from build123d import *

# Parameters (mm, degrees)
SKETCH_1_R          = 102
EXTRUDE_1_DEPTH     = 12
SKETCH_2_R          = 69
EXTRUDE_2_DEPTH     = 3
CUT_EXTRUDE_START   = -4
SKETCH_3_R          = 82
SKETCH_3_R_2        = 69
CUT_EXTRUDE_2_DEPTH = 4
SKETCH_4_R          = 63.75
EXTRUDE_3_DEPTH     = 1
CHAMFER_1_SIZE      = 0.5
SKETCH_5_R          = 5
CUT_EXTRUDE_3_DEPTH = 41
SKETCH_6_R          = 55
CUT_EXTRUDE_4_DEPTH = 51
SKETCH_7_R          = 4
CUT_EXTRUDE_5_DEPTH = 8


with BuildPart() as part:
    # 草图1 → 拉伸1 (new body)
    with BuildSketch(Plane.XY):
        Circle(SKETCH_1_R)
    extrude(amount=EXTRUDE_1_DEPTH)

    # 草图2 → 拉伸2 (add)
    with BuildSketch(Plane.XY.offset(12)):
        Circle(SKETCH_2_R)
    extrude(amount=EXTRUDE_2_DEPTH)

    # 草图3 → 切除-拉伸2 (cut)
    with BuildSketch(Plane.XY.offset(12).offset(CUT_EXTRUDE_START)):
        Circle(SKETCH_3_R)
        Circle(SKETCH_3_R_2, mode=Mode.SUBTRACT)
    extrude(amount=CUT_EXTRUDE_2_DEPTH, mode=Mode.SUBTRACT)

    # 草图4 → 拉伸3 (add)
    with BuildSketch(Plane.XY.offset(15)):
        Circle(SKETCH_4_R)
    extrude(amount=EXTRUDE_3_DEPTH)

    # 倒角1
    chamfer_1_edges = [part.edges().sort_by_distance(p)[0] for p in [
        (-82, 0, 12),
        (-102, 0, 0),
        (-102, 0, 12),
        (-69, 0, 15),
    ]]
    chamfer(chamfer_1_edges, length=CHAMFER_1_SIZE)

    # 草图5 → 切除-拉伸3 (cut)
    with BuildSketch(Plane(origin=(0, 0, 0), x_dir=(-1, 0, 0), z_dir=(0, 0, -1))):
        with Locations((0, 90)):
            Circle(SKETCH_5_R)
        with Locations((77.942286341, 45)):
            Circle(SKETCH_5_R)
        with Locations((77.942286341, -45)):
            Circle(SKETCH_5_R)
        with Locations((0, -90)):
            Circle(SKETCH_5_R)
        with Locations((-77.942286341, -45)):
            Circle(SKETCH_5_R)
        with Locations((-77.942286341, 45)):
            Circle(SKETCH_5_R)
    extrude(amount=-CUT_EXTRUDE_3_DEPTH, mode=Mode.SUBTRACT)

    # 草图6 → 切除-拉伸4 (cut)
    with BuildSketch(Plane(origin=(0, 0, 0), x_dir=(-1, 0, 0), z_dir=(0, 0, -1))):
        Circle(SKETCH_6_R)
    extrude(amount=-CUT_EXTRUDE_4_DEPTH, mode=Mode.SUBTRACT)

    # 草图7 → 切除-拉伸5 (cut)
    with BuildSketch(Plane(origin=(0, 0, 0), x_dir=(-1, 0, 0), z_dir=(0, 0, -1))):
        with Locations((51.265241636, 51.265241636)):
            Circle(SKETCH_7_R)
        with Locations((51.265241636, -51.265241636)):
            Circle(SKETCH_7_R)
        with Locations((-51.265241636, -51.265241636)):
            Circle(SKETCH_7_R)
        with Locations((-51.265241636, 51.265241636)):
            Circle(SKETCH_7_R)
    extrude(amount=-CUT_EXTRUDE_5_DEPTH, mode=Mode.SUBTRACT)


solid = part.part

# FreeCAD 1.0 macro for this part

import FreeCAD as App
import Part
import Sketcher

V = App.Vector


def edges_at(feature, points):
    """Names of the edges that pass closest to the given points."""
    edges = feature.Shape.Edges
    near = lambda p: min(range(len(edges)), key=lambda i: edges[i].distToShape(Part.Vertex(*p))[0])
    return sorted({f"Edge{near(p) + 1}" for p in points})

doc = App.newDocument("Part")
params = doc.addObject("Spreadsheet::Sheet", "Params")
for row, (alias, value) in enumerate([
    ("sketch1_diameter", "204 mm"),
    ("pad1_length", "12 mm"),
    ("sketch2_diameter", "138 mm"),
    ("pad2_length", "3 mm"),
    ("sketch3_diameter", "164 mm"),
    ("sketch3_diameter2", "138 mm"),
    ("pocket1_length", "4 mm"),
    ("sketch4_diameter", "127.5 mm"),
    ("pad3_length", "1 mm"),
    ("chamfer_size", "0.5 mm"),
    ("sketch5_diameter", "10 mm"),
    ("pocket2_length", "41 mm"),
    ("sketch6_diameter", "110 mm"),
    ("pocket3_length", "51 mm"),
    ("sketch7_diameter", "8 mm"),
    ("pocket4_length", "8 mm"),
], start=1):
    params.set(f"A{row}", alias)
    params.set(f"B{row}", "=" + value)
    params.setAlias(f"B{row}", alias)

body = doc.addObject("PartDesign::Body", "Body")

# Sketch on XY plane
sketch1 = body.newObject("Sketcher::SketchObject", "Sketch")
sketch1.AttachmentSupport = (doc.getObject("XY_Plane"), [""])
sketch1.MapMode = "FlatFace"
sketch1.addGeometry(Part.Circle(V(0, 0, 0), V(0, 0, 1), 102), False)
sketch1.addConstraint(Sketcher.Constraint("Coincident", 0, 3, -1, 1))
sketch1.addConstraint(Sketcher.Constraint("Diameter", 0, 204.0))
sketch1.setExpression("Constraints[1]", "Params.sketch1_diameter")
pad1 = body.newObject("PartDesign::Pad", "Pad")
pad1.Profile = sketch1
pad1.setExpression("Length", "Params.pad1_length")

# Sketch on XY plane
sketch2 = body.newObject("Sketcher::SketchObject", "Sketch001")
sketch2.AttachmentSupport = (doc.getObject("XY_Plane"), [""])
sketch2.MapMode = "FlatFace"
sketch2.AttachmentOffset = App.Placement(V(0, 0, 12), App.Rotation())
sketch2.addGeometry(Part.Circle(V(0, 0, 0), V(0, 0, 1), 69), False)
sketch2.addConstraint(Sketcher.Constraint("Coincident", 0, 3, -1, 1))
sketch2.addConstraint(Sketcher.Constraint("Diameter", 0, 138.0))
sketch2.setExpression("Constraints[1]", "Params.sketch2_diameter")
pad2 = body.newObject("PartDesign::Pad", "Pad001")
pad2.Profile = sketch2
pad2.setExpression("Length", "Params.pad2_length")

# Sketch on XY plane
sketch3 = body.newObject("Sketcher::SketchObject", "Sketch002")
sketch3.AttachmentSupport = (doc.getObject("XY_Plane"), [""])
sketch3.MapMode = "FlatFace"
sketch3.AttachmentOffset = App.Placement(V(0, 0, 8), App.Rotation())
sketch3.addGeometry(Part.Circle(V(0, 0, 0), V(0, 0, 1), 82), False)
sketch3.addGeometry(Part.Circle(V(0, 0, 0), V(0, 0, 1), 69), False)
sketch3.addConstraint(Sketcher.Constraint("Coincident", 0, 3, -1, 1))
sketch3.addConstraint(Sketcher.Constraint("Coincident", 1, 3, -1, 1))
sketch3.addConstraint(Sketcher.Constraint("Diameter", 0, 164.0))
sketch3.addConstraint(Sketcher.Constraint("Diameter", 1, 138.0))
sketch3.setExpression("Constraints[2]", "Params.sketch3_diameter")
sketch3.setExpression("Constraints[3]", "Params.sketch3_diameter2")
pocket1 = body.newObject("PartDesign::Pocket", "Pocket")
pocket1.Profile = sketch3
pocket1.setExpression("Length", "Params.pocket1_length")
pocket1.Reversed = True

# Sketch on XY plane
sketch4 = body.newObject("Sketcher::SketchObject", "Sketch003")
sketch4.AttachmentSupport = (doc.getObject("XY_Plane"), [""])
sketch4.MapMode = "FlatFace"
sketch4.AttachmentOffset = App.Placement(V(0, 0, 15), App.Rotation())
sketch4.addGeometry(Part.Circle(V(0, 0, 0), V(0, 0, 1), 64), False)
sketch4.addConstraint(Sketcher.Constraint("Coincident", 0, 3, -1, 1))
sketch4.addConstraint(Sketcher.Constraint("Diameter", 0, 127.5))
sketch4.setExpression("Constraints[1]", "Params.sketch4_diameter")
pad3 = body.newObject("PartDesign::Pad", "Pad002")
pad3.Profile = sketch4
pad3.setExpression("Length", "Params.pad3_length")
doc.recompute()

chamfer = body.newObject("PartDesign::Chamfer", "Chamfer")
chamfer.Base = (pad3, edges_at(pad3, [
    (-82, 0, 12),
    (-102, 0, 0),
    (-102, 0, 12),
    (-69, 0, 15),
]))
chamfer.setExpression("Size", "Params.chamfer_size")

# Sketch on XY plane
sketch5 = body.newObject("Sketcher::SketchObject", "Sketch004")
sketch5.AttachmentSupport = (doc.getObject("XY_Plane"), [""])
sketch5.MapMode = "FlatFace"
sketch5.addGeometry(Part.Circle(V(0, 90, 0), V(0, 0, 1), 5), False)
sketch5.addGeometry(Part.Circle(V(-78, 45, 0), V(0, 0, 1), 5), False)
sketch5.addGeometry(Part.Circle(V(-78, -45, 0), V(0, 0, 1), 5), False)
sketch5.addGeometry(Part.Circle(V(0, -90, 0), V(0, 0, 1), 5), False)
sketch5.addGeometry(Part.Circle(V(78, -45, 0), V(0, 0, 1), 5), False)
sketch5.addGeometry(Part.Circle(V(78, 45, 0), V(0, 0, 1), 5), False)
sketch5.addConstraint(Sketcher.Constraint("Equal", 0, 1))
sketch5.addConstraint(Sketcher.Constraint("Equal", 1, 2))
sketch5.addConstraint(Sketcher.Constraint("Equal", 2, 3))
sketch5.addConstraint(Sketcher.Constraint("Equal", 3, 4))
sketch5.addConstraint(Sketcher.Constraint("Equal", 4, 5))
sketch5.addConstraint(Sketcher.Constraint("Symmetric", 0, 3, 3, 3, -1, 1))
sketch5.addConstraint(Sketcher.Constraint("Symmetric", 1, 3, 4, 3, -1, 1))
sketch5.addConstraint(Sketcher.Constraint("Symmetric", 2, 3, 5, 3, -1, 1))
sketch5.addConstraint(Sketcher.Constraint("Symmetric", 2, 3, 4, 3, -2))
sketch5.addConstraint(Sketcher.Constraint("PointOnObject", 0, 3, -2))
sketch5.addConstraint(Sketcher.Constraint("Diameter", 0, 10.0))
sketch5.addConstraint(Sketcher.Constraint("DistanceY", -1, 1, 0, 3, 90.0))
sketch5.addConstraint(Sketcher.Constraint("DistanceY", -1, 1, 1, 3, 45.0))
sketch5.addConstraint(Sketcher.Constraint("DistanceX", 1, 3, -1, 1, 77.942286))
sketch5.setExpression("Constraints[10]", "Params.sketch5_diameter")
pocket2 = body.newObject("PartDesign::Pocket", "Pocket001")
pocket2.Profile = sketch5
pocket2.setExpression("Length", "Params.pocket2_length")
pocket2.Reversed = True

# Sketch on XY plane
sketch6 = body.newObject("Sketcher::SketchObject", "Sketch005")
sketch6.AttachmentSupport = (doc.getObject("XY_Plane"), [""])
sketch6.MapMode = "FlatFace"
sketch6.addGeometry(Part.Circle(V(0, 0, 0), V(0, 0, 1), 55), False)
sketch6.addConstraint(Sketcher.Constraint("Coincident", 0, 3, -1, 1))
sketch6.addConstraint(Sketcher.Constraint("Diameter", 0, 110.0))
sketch6.setExpression("Constraints[1]", "Params.sketch6_diameter")
pocket3 = body.newObject("PartDesign::Pocket", "Pocket002")
pocket3.Profile = sketch6
pocket3.setExpression("Length", "Params.pocket3_length")
pocket3.Reversed = True

# Sketch on XY plane
sketch7 = body.newObject("Sketcher::SketchObject", "Sketch006")
sketch7.AttachmentSupport = (doc.getObject("XY_Plane"), [""])
sketch7.MapMode = "FlatFace"
sketch7.addGeometry(Part.Circle(V(-51.3, 51.3, 0), V(0, 0, 1), 4), False)
sketch7.addGeometry(Part.Circle(V(-51.3, -51.3, 0), V(0, 0, 1), 4), False)
sketch7.addGeometry(Part.Circle(V(51.3, -51.3, 0), V(0, 0, 1), 4), False)
sketch7.addGeometry(Part.Circle(V(51.3, 51.3, 0), V(0, 0, 1), 4), False)
sketch7.addConstraint(Sketcher.Constraint("Equal", 0, 1))
sketch7.addConstraint(Sketcher.Constraint("Equal", 1, 2))
sketch7.addConstraint(Sketcher.Constraint("Equal", 2, 3))
sketch7.addConstraint(Sketcher.Constraint("Symmetric", 0, 3, 2, 3, -1, 1))
sketch7.addConstraint(Sketcher.Constraint("Symmetric", 1, 3, 3, 3, -1, 1))
sketch7.addConstraint(Sketcher.Constraint("Symmetric", 1, 3, 2, 3, -2))
sketch7.addConstraint(Sketcher.Constraint("Diameter", 0, 8.0))
sketch7.addConstraint(Sketcher.Constraint("DistanceX", 0, 3, -1, 1, 51.265242))
sketch7.addConstraint(Sketcher.Constraint("DistanceY", -1, 1, 0, 3, 51.265242))
sketch7.setExpression("Constraints[6]", "Params.sketch7_diameter")
pocket4 = body.newObject("PartDesign::Pocket", "Pocket003")
pocket4.Profile = sketch7
pocket4.setExpression("Length", "Params.pocket4_length")
pocket4.Reversed = True

doc.recompute()
